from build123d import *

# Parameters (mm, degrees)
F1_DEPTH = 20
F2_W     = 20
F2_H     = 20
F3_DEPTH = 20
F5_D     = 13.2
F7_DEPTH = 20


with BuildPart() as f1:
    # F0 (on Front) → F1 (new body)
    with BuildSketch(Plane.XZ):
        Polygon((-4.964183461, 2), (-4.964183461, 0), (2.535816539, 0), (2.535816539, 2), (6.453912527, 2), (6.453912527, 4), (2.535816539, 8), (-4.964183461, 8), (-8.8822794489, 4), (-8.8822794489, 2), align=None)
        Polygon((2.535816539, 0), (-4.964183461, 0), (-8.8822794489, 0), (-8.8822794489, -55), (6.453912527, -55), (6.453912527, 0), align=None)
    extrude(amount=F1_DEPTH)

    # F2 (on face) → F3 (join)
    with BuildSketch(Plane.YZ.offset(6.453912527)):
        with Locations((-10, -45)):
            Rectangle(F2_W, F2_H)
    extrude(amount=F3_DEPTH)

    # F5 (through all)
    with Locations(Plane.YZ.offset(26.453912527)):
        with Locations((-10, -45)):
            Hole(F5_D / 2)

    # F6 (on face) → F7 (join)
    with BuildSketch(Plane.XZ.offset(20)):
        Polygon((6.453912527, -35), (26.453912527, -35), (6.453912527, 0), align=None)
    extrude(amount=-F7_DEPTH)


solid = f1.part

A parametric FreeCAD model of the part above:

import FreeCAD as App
import Part
import Sketcher
Q = App.Units.Quantity

doc = App.newDocument("Part")
params = doc.addObject("Spreadsheet::Sheet", "Params")
for row, (alias, value) in enumerate([
    ("sketch1_height", "2 mm"),
    ("sketch1_height2", "55 mm"),
    ("sketch1_width", "7.5 mm"),
    ("pad1_length", "20 mm"),
    ("sketch2_width", "20 mm"),
    ("pad2_length", "20 mm"),
    ("sketch3_diameter", "13.2 mm"),
    ("hole_diameter", "13.2 mm"),
    ("sketch4_width", "20 mm"),
    ("sketch4_height", "35 mm"),
    ("pad3_length", "20 mm"),
], start=1):
    params.set(f"A{row}", alias)
    params.set(f"B{row}", "=" + value)
    params.setAlias(f"B{row}", alias)

body = doc.addObject("PartDesign::Body", "Body")

# Sketch on XZ plane
sketch1 = doc.addObject("Sketcher::SketchObject", "Sketch")
body.addObject(sketch1)
sketch1.AttachmentSupport = (doc.XZ_Plane, [""])
sketch1.MapMode = "FlatFace"
sketch1.addGeometry([
    Part.LineSegment(App.Vector(-4.964183, 2, 0), App.Vector(-4.964183, 0, 0)),  # 0
    Part.LineSegment(App.Vector(-4.964183, 0, 0), App.Vector(-8.882279, 0, 0)),  # 1
    Part.LineSegment(App.Vector(-8.882279, 0, 0), App.Vector(-8.882279, -55, 0)),  # 2
    Part.LineSegment(App.Vector(-8.882279, -55, 0), App.Vector(6.453913, -55, 0)),  # 3
    Part.LineSegment(App.Vector(6.453913, -55, 0), App.Vector(6.453913, 0, 0)),  # 4
    Part.LineSegment(App.Vector(6.453913, 0, 0), App.Vector(2.535817, 0, 0)),  # 5
    Part.LineSegment(App.Vector(2.535817, 0, 0), App.Vector(2.535817, 2, 0)),  # 6
    Part.LineSegment(App.Vector(2.535817, 2, 0), App.Vector(6.453913, 2, 0)),  # 7
    Part.LineSegment(App.Vector(6.453913, 2, 0), App.Vector(6.453913, 4, 0)),  # 8
    Part.LineSegment(App.Vector(6.453913, 4, 0), App.Vector(2.535817, 8, 0)),  # 9
    Part.LineSegment(App.Vector(2.535817, 8, 0), App.Vector(-4.964183, 8, 0)),  # 10
    Part.LineSegment(App.Vector(-4.964183, 8, 0), App.Vector(-8.882279, 4, 0)),  # 11
    Part.LineSegment(App.Vector(-8.882279, 4, 0), App.Vector(-8.882279, 2, 0)),  # 12
    Part.LineSegment(App.Vector(-8.882279, 2, 0), App.Vector(-4.964183, 2, 0)),  # 13
], False)
sketch1.addConstraint([
    Sketcher.Constraint("Coincident", 0, 2, 1, 1),
    Sketcher.Constraint("Coincident", 1, 2, 2, 1),
    Sketcher.Constraint("Coincident", 2, 2, 3, 1),
    Sketcher.Constraint("Coincident", 3, 2, 4, 1),
    Sketcher.Constraint("Coincident", 4, 2, 5, 1),
    Sketcher.Constraint("Coincident", 5, 2, 6, 1),
    Sketcher.Constraint("Coincident", 6, 2, 7, 1),
    Sketcher.Constraint("Coincident", 7, 2, 8, 1),
    Sketcher.Constraint("Coincident", 8, 2, 9, 1),
    Sketcher.Constraint("Coincident", 9, 2, 10, 1),
    Sketcher.Constraint("Coincident", 10, 2, 11, 1),
    Sketcher.Constraint("Coincident", 11, 2, 12, 1),
    Sketcher.Constraint("Coincident", 12, 2, 13, 1),
    Sketcher.Constraint("Coincident", 13, 2, 0, 1),
    Sketcher.Constraint("Vertical", 0),
    Sketcher.Constraint("Horizontal", 1),
    Sketcher.Constraint("Vertical", 2),
    Sketcher.Constraint("Horizontal", 3),
    Sketcher.Constraint("Vertical", 4),
    Sketcher.Constraint("Horizontal", 5),
    Sketcher.Constraint("Vertical", 6),
    Sketcher.Constraint("Horizontal", 7),
    Sketcher.Constraint("Vertical", 8),
    Sketcher.Constraint("Horizontal", 10),
    Sketcher.Constraint("Vertical", 12),
    Sketcher.Constraint("Horizontal", 13),
    Sketcher.Constraint("PointOnObject", 0, 2, -1),
    Sketcher.Constraint("PointOnObject", 4, 2, -1),
    Sketcher.Constraint("Horizontal", 8, 2, 11, 2),
    Sketcher.Constraint("Horizontal", 7, 2, 12, 2),
    Sketcher.Constraint("Vertical", 4, 2, 7, 2),
    Sketcher.Constraint("Vertical", 6, 2, 9, 2),
    Sketcher.Constraint("Vertical", 0, 2, 10, 2),
    Sketcher.Constraint("Vertical", 2, 2, 11, 2),
    Sketcher.Constraint("Equal", 1, 5),
    Sketcher.Constraint("Equal", 6, 8),
    Sketcher.Constraint("DistanceY", 0, 2, 0, 1, Q("2 mm")),
    Sketcher.Constraint("DistanceY", 2, 2, 2, 1, Q("55 mm")),
    Sketcher.Constraint("DistanceX", 10, 2, 10, 1, Q("7.5 mm")),
    Sketcher.Constraint("DistanceY", -1, 1, 9, 2, Q("8 mm")),
    Sketcher.Constraint("DistanceX", 3, 1, 3, 2, Q("15.336192 mm")),
    Sketcher.Constraint("DistanceX", 1, 2, -1, 1, Q("8.882279 mm")),
])
sketch1.setExpression("Constraints[36]", "Params.sketch1_height")
sketch1.setExpression("Constraints[37]", "Params.sketch1_height2")
sketch1.setExpression("Constraints[38]", "Params.sketch1_width")
pad1 = doc.addObject("PartDesign::Pad", "Pad")
body.addObject(pad1)
pad1.Profile = sketch1
pad1.setExpression("Length", "Params.pad1_length")

# Sketch on YZ plane
sketch2 = doc.addObject("Sketcher::SketchObject", "Sketch001")
body.addObject(sketch2)
sketch2.AttachmentSupport = (doc.YZ_Plane, [""])
sketch2.MapMode = "FlatFace"
sketch2.AttachmentOffset = App.Placement(App.Vector(0, 0, 6.453913), App.Rotation())
sketch2.addGeometry([
    Part.LineSegment(App.Vector(-20, -35, 0), App.Vector(-20, -55, 0)),
    Part.LineSegment(App.Vector(-20, -55, 0), App.Vector(0, -55, 0)),
    Part.LineSegment(App.Vector(0, -55, 0), App.Vector(0, -35, 0)),
    Part.LineSegment(App.Vector(0, -35, 0), App.Vector(-20, -35, 0)),
], False)
sketch2.addConstraint([
    Sketcher.Constraint("Coincident", 0, 2, 1, 1),
    Sketcher.Constraint("Coincident", 1, 2, 2, 1),
    Sketcher.Constraint("Coincident", 2, 2, 3, 1),
    Sketcher.Constraint("Coincident", 3, 2, 0, 1),
    Sketcher.Constraint("Vertical", 0),
    Sketcher.Constraint("Horizontal", 1),
    Sketcher.Constraint("Vertical", 2),
    Sketcher.Constraint("Horizontal", 3),
    Sketcher.Constraint("PointOnObject", 1, 2, -2),
    Sketcher.Constraint("Equal", 3, 0),
    Sketcher.Constraint("DistanceX", 1, 1, 1, 2, Q("20 mm")),
    Sketcher.Constraint("DistanceY", 0, 2, -1, 1, Q("55 mm")),
])
sketch2.setExpression("Constraints[10]", "Params.sketch2_width")
pad2 = doc.addObject("PartDesign::Pad", "Pad001")
body.addObject(pad2)
pad2.Profile = sketch2
pad2.setExpression("Length", "Params.pad2_length")

# Sketch on YZ plane
sketch3 = doc.addObject("Sketcher::SketchObject", "Sketch002")
body.addObject(sketch3)
sketch3.AttachmentSupport = (doc.YZ_Plane, [""])
sketch3.MapMode = "FlatFace"
sketch3.AttachmentOffset = App.Placement(App.Vector(0, 0, 26.453913), App.Rotation())
sketch3.addGeometry(Part.Circle(App.Vector(-10, -45, 0), App.Vector(0, 0, 1), 6.6), False)
sketch3.addConstraint([
    Sketcher.Constraint("Diameter", 0, Q("13.2 mm")),
    Sketcher.Constraint("DistanceX", 0, 3, -1, 1, Q("10 mm")),
    Sketcher.Constraint("DistanceY", 0, 3, -1, 1, Q("45 mm")),
])
sketch3.setExpression("Constraints[0]", "Params.sketch3_diameter")
doc.recompute()
hole = doc.addObject("PartDesign::Hole", "Hole")
body.addObject(hole)
hole.Profile = sketch3
hole.ThreadType = "None"
hole.setExpression("Diameter", "Params.hole_diameter")
hole.DepthType = "ThroughAll"

# Sketch on XZ plane
sketch4 = doc.addObject("Sketcher::SketchObject", "Sketch003")
body.addObject(sketch4)
sketch4.AttachmentSupport = (doc.XZ_Plane, [""])
sketch4.MapMode = "FlatFace"
sketch4.AttachmentOffset = App.Placement(App.Vector(0, 0, 20), App.Rotation())
sketch4.addGeometry([
    Part.LineSegment(App.Vector(6.453913, -35, 0), App.Vector(26.453913, -35, 0)),
    Part.LineSegment(App.Vector(26.453913, -35, 0), App.Vector(6.453913, 0, 0)),
    Part.LineSegment(App.Vector(6.453913, 0, 0), App.Vector(6.453913, -35, 0)),
], False)
sketch4.addConstraint([
    Sketcher.Constraint("Coincident", 0, 2, 1, 1),
    Sketcher.Constraint("Coincident", 1, 2, 2, 1),
    Sketcher.Constraint("Coincident", 2, 2, 0, 1),
    Sketcher.Constraint("Horizontal", 0),
    Sketcher.Constraint("Vertical", 2),
    Sketcher.Constraint("PointOnObject", 1, 2, -1),
    Sketcher.Constraint("DistanceX", 0, 1, 0, 2, Q("20 mm")),
    Sketcher.Constraint("DistanceY", 2, 2, 2, 1, Q("35 mm")),
    Sketcher.Constraint("DistanceX", -1, 1, 0, 2, Q("26.453913 mm")),
])
sketch4.setExpression("Constraints[6]", "Params.sketch4_width")
sketch4.setExpression("Constraints[7]", "Params.sketch4_height")
pad3 = doc.addObject("PartDesign::Pad", "Pad002")
body.addObject(pad3)
pad3.Profile = sketch4
pad3.setExpression("Length", "Params.pad3_length")
pad3.Reversed = True

doc.recompute()
